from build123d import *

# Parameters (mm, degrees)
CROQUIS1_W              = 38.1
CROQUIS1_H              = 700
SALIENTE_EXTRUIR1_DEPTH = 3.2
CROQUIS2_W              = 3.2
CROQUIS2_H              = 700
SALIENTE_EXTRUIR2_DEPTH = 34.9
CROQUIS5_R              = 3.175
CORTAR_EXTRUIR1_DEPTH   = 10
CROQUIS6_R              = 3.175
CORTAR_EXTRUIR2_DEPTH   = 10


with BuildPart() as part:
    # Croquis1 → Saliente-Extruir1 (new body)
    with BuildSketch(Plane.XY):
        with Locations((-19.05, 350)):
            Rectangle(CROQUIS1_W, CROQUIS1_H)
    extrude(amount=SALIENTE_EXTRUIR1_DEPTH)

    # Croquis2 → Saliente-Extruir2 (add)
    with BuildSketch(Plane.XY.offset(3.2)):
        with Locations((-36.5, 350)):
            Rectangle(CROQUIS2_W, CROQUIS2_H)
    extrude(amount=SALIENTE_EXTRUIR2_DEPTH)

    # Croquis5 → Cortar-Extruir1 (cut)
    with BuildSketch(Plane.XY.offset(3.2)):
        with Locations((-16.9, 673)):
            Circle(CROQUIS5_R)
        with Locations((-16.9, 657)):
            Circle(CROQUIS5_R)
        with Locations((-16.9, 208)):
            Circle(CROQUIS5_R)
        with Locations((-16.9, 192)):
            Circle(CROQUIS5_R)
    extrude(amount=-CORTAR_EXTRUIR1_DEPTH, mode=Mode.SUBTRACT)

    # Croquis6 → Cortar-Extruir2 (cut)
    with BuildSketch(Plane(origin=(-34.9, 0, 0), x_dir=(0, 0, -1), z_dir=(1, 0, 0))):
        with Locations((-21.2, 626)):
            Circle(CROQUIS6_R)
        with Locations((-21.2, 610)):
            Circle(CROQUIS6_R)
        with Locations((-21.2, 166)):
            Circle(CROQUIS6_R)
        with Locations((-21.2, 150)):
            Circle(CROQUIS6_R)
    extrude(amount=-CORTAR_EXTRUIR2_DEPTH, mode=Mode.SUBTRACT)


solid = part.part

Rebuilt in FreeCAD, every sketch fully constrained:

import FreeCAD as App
import Part
import Sketcher

V = App.Vector

doc = App.newDocument("Part")
body = doc.addObject("PartDesign::Body", "Body")

# Sketch on XY plane
sketch1 = body.newObject("Sketcher::SketchObject", "Sketch")
sketch1.AttachmentSupport = (doc.getObject("XY_Plane"), [""])
sketch1.MapMode = "FlatFace"
sketch1.addGeometry(Part.LineSegment(V(-38, 700, 0), V(-38, 0, 0)), False)
sketch1.addGeometry(Part.LineSegment(V(-38, 0, 0), V(0, 0, 0)), False)
sketch1.addGeometry(Part.LineSegment(V(0, 0, 0), V(0, 700, 0)), False)
sketch1.addGeometry(Part.LineSegment(V(0, 700, 0), V(-38, 700, 0)), False)
sketch1.addConstraint(Sketcher.Constraint("Coincident", 0, 2, 1, 1))
sketch1.addConstraint(Sketcher.Constraint("Coincident", 1, 2, 2, 1))
sketch1.addConstraint(Sketcher.Constraint("Coincident", 2, 2, 3, 1))
sketch1.addConstraint(Sketcher.Constraint("Coincident", 3, 2, 0, 1))
sketch1.addConstraint(Sketcher.Constraint("Vertical", 0))
sketch1.addConstraint(Sketcher.Constraint("Horizontal", 1))
sketch1.addConstraint(Sketcher.Constraint("Vertical", 2))
sketch1.addConstraint(Sketcher.Constraint("Horizontal", 3))
sketch1.addConstraint(Sketcher.Constraint("Coincident", 1, 2, -1, 1))
sketch1.addConstraint(Sketcher.Constraint("DistanceY", 0, 2, 0, 1, 700.0))
sketch1.addConstraint(Sketcher.Constraint("DistanceX", 1, 1, 1, 2, 38.1))
pad1 = body.newObject("PartDesign::Pad", "Pad")
pad1.Profile = sketch1
pad1.Length = 3.2

# Sketch on XY plane
sketch2 = body.newObject("Sketcher::SketchObject", "Sketch001")
sketch2.AttachmentSupport = (doc.getObject("XY_Plane"), [""])
sketch2.MapMode = "FlatFace"
sketch2.AttachmentOffset = App.Placement(V(0, 0, 3.2), App.Rotation())
sketch2.addGeometry(Part.LineSegment(V(-38.1, 700, 0), V(-38.1, 0, 0)), False)
sketch2.addGeometry(Part.LineSegment(V(-38.1, 0, 0), V(-34.9, 0, 0)), False)
sketch2.addGeometry(Part.LineSegment(V(-34.9, 0, 0), V(-34.9, 700, 0)), False)
sketch2.addGeometry(Part.LineSegment(V(-34.9, 700, 0), V(-38.1, 700, 0)), False)
sketch2.addConstraint(Sketcher.Constraint("Coincident", 0, 2, 1, 1))
sketch2.addConstraint(Sketcher.Constraint("Coincident", 1, 2, 2, 1))
sketch2.addConstraint(Sketcher.Constraint("Coincident", 2, 2, 3, 1))
sketch2.addConstraint(Sketcher.Constraint("Coincident", 3, 2, 0, 1))
sketch2.addConstraint(Sketcher.Constraint("Vertical", 0))
sketch2.addConstraint(Sketcher.Constraint("Horizontal", 1))
sketch2.addConstraint(Sketcher.Constraint("Vertical", 2))
sketch2.addConstraint(Sketcher.Constraint("Horizontal", 3))
sketch2.addConstraint(Sketcher.Constraint("PointOnObject", 0, 2, -1))
sketch2.addConstraint(Sketcher.Constraint("DistanceY", 0, 2, 0, 1, 700.0))
sketch2.addConstraint(Sketcher.Constraint("DistanceX", 1, 1, 1, 2, 3.2))
sketch2.addConstraint(Sketcher.Constraint("DistanceX", 0, 2, -1, 1, 38.1))
pad2 = body.newObject("PartDesign::Pad", "Pad001")
pad2.Profile = sketch2
pad2.Length = 34.9

# Sketch on XY plane
sketch3 = body.newObject("Sketcher::SketchObject", "Sketch002")
sketch3.AttachmentSupport = (doc.getObject("XY_Plane"), [""])
sketch3.MapMode = "FlatFace"
sketch3.AttachmentOffset = App.Placement(V(0, 0, 3.2), App.Rotation())
sketch3.addGeometry(Part.Circle(V(-16.9, 673, 0), V(0, 0, 1), 3.2), False)
sketch3.addGeometry(Part.Circle(V(-16.9, 657, 0), V(0, 0, 1), 3.2), False)
sketch3.addGeometry(Part.Circle(V(-16.9, 208, 0), V(0, 0, 1), 3.2), False)
sketch3.addGeometry(Part.Circle(V(-16.9, 192, 0), V(0, 0, 1), 3.2), False)
sketch3.addConstraint(Sketcher.Constraint("Equal", 0, 1))
sketch3.addConstraint(Sketcher.Constraint("Equal", 1, 2))
sketch3.addConstraint(Sketcher.Constraint("Equal", 2, 3))
sketch3.addConstraint(Sketcher.Constraint("Vertical", 0, 3, 1, 3))
sketch3.addConstraint(Sketcher.Constraint("Vertical", 1, 3, 2, 3))
sketch3.addConstraint(Sketcher.Constraint("Vertical", 2, 3, 3, 3))
sketch3.addConstraint(Sketcher.Constraint("Diameter", 0, 6.35))
sketch3.addConstraint(Sketcher.Constraint("DistanceY", -1, 1, 0, 3, 673.0))
sketch3.addConstraint(Sketcher.Constraint("DistanceY", -1, 1, 1, 3, 657.0))
sketch3.addConstraint(Sketcher.Constraint("DistanceY", -1, 1, 2, 3, 208.0))
sketch3.addConstraint(Sketcher.Constraint("DistanceY", -1, 1, 3, 3, 192.0))
sketch3.addConstraint(Sketcher.Constraint("DistanceX", 0, 3, -1, 1, 16.9))
pocket1 = body.newObject("PartDesign::Pocket", "Pocket")
pocket1.Profile = sketch3
pocket1.Length = 10

# Sketch on YZ plane
sketch4 = body.newObject("Sketcher::SketchObject", "Sketch003")
sketch4.AttachmentSupport = (doc.getObject("YZ_Plane"), [""])
sketch4.MapMode = "FlatFace"
sketch4.AttachmentOffset = App.Placement(V(0, 0, -34.9), App.Rotation())
sketch4.addGeometry(Part.Circle(V(626, 21.2, 0), V(0, 0, 1), 3.2), False)
sketch4.addGeometry(Part.Circle(V(610, 21.2, 0), V(0, 0, 1), 3.2), False)
sketch4.addGeometry(Part.Circle(V(166, 21.2, 0), V(0, 0, 1), 3.2), False)
sketch4.addGeometry(Part.Circle(V(150, 21.2, 0), V(0, 0, 1), 3.2), False)
sketch4.addConstraint(Sketcher.Constraint("Equal", 0, 1))
sketch4.addConstraint(Sketcher.Constraint("Equal", 1, 2))
sketch4.addConstraint(Sketcher.Constraint("Equal", 2, 3))
sketch4.addConstraint(Sketcher.Constraint("Horizontal", 0, 3, 1, 3))
sketch4.addConstraint(Sketcher.Constraint("Horizontal", 1, 3, 2, 3))
sketch4.addConstraint(Sketcher.Constraint("Horizontal", 2, 3, 3, 3))
sketch4.addConstraint(Sketcher.Constraint("Diameter", 0, 6.35))
sketch4.addConstraint(Sketcher.Constraint("DistanceX", -1, 1, 0, 3, 626.0))
sketch4.addConstraint(Sketcher.Constraint("DistanceX", -1, 1, 1, 3, 610.0))
sketch4.addConstraint(Sketcher.Constraint("DistanceX", -1, 1, 2, 3, 166.0))
sketch4.addConstraint(Sketcher.Constraint("DistanceX", -1, 1, 3, 3, 150.0))
sketch4.addConstraint(Sketcher.Constraint("DistanceY", -1, 1, 0, 3, 21.2))
pocket2 = body.newObject("PartDesign::Pocket", "Pocket001")
pocket2.Profile = sketch4
pocket2.Length = 10

doc.recompute()
